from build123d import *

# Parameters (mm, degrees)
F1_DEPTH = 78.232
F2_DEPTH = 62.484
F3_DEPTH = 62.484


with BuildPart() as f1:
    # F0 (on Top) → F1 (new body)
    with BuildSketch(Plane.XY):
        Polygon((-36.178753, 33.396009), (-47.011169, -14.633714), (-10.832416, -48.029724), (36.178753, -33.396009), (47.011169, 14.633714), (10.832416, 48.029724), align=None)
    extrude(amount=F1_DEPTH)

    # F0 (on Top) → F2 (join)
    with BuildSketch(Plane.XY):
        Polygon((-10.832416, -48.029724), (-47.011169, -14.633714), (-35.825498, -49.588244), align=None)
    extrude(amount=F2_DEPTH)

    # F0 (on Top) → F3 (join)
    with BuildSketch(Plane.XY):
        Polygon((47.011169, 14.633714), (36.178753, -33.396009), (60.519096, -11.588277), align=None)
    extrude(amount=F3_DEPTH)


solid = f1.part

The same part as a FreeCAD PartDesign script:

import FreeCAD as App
import Part
import Sketcher
Q = App.Units.Quantity


def add_polygon(sketch, points):
    """Adds a closed chain of lines whose ends are joined by coincident constraints."""
    first, n = sketch.GeometryCount, len(points)
    for a, b in zip(points, points[1:] + points[:1]):
        sketch.addGeometry(Part.LineSegment(App.Vector(*a, 0), App.Vector(*b, 0)), False)
    for i in range(n):
        sketch.addConstraint(Sketcher.Constraint("Coincident", first + i, 2, first + (i + 1) % n, 1))

doc = App.newDocument("Part")
body = doc.addObject("PartDesign::Body", "Body")

# Sketch on XY plane
sketch1 = body.newObject("Sketcher::SketchObject", "Sketch")
sketch1.AttachmentSupport = (doc.getObject("XY_Plane"), [""])
sketch1.MapMode = "FlatFace"
add_polygon(sketch1, [(-36, 33), (-47, -15), (-11, -48), (36, -33), (47, 15), (11, 48)])  # lines 0-5
sketch1.addConstraint([
    Sketcher.Constraint("Symmetric", 0, 2, 3, 2, -1, 1),
    Sketcher.Constraint("Symmetric", 1, 2, 4, 2, -1, 1),
    Sketcher.Constraint("Symmetric", 2, 2, 5, 2, -1, 1),
    Sketcher.Constraint("Equal", 0, 1),
    Sketcher.Constraint("Equal", 1, 2),
    Sketcher.Constraint("Distance", 0, Q("49.23612 mm")),
    Sketcher.Constraint("DistanceX", 0, 2, -1, 1, Q("47.011169 mm")),
    Sketcher.Constraint("DistanceY", 2, 2, -1, 1, Q("33.396009 mm")),
    Sketcher.Constraint("DistanceY", 1, 2, 0, 2, Q("33.39601 mm")),
])
pad1 = body.newObject("PartDesign::Pad", "Pad")
pad1.Profile = sketch1
pad1.Length = Q("3.08 in")

# Sketch on XY plane
sketch2 = body.newObject("Sketcher::SketchObject", "Sketch001")
sketch2.AttachmentSupport = (doc.getObject("XY_Plane"), [""])
sketch2.MapMode = "FlatFace"
add_polygon(sketch2, [(-11, -48), (-47, -15), (-36, -50)])  # lines 0-2
sketch2.addConstraint([
    Sketcher.Constraint("DistanceX", 1, 2, -1, 1, Q("35.825498 mm")),
    Sketcher.Constraint("Distance", 0, Q("49.236121 mm")),
    Sketcher.Constraint("Distance", 1, Q("36.700659 mm")),
    Sketcher.Constraint("DistanceX", 0, 2, -1, 1, Q("47.011169 mm")),
    Sketcher.Constraint("DistanceY", 1, 2, 2, 2, Q("1.55852 mm")),
    Sketcher.Constraint("DistanceY", 0, 2, -1, 1, Q("14.633714 mm")),
])
pad2 = body.newObject("PartDesign::Pad", "Pad001")
pad2.Profile = sketch2
pad2.Length = Q("2.46 in")

# Sketch on XY plane
sketch3 = body.newObject("Sketcher::SketchObject", "Sketch002")
sketch3.AttachmentSupport = (doc.getObject("XY_Plane"), [""])
sketch3.MapMode = "FlatFace"
add_polygon(sketch3, [(47, 15), (36, -33), (61, -12)])  # lines 0-2
sketch3.addConstraint([
    Sketcher.Constraint("Distance", 0, Q("49.23612 mm")),
    Sketcher.Constraint("Distance", 1, Q("32.68072 mm")),
    Sketcher.Constraint("DistanceY", 0, 2, -1, 1, Q("33.396009 mm")),
    Sketcher.Constraint("DistanceX", -1, 1, 2, 2, Q("47.011169 mm")),
    Sketcher.Constraint("DistanceY", 1, 2, 2, 2, Q("26.221991 mm")),
    Sketcher.Constraint("Distance", 2, Q("29.496727 mm")),
])
pad3 = body.newObject("PartDesign::Pad", "Pad002")
pad3.Profile = sketch3
pad3.Length = Q("2.46 in")

doc.recompute()
